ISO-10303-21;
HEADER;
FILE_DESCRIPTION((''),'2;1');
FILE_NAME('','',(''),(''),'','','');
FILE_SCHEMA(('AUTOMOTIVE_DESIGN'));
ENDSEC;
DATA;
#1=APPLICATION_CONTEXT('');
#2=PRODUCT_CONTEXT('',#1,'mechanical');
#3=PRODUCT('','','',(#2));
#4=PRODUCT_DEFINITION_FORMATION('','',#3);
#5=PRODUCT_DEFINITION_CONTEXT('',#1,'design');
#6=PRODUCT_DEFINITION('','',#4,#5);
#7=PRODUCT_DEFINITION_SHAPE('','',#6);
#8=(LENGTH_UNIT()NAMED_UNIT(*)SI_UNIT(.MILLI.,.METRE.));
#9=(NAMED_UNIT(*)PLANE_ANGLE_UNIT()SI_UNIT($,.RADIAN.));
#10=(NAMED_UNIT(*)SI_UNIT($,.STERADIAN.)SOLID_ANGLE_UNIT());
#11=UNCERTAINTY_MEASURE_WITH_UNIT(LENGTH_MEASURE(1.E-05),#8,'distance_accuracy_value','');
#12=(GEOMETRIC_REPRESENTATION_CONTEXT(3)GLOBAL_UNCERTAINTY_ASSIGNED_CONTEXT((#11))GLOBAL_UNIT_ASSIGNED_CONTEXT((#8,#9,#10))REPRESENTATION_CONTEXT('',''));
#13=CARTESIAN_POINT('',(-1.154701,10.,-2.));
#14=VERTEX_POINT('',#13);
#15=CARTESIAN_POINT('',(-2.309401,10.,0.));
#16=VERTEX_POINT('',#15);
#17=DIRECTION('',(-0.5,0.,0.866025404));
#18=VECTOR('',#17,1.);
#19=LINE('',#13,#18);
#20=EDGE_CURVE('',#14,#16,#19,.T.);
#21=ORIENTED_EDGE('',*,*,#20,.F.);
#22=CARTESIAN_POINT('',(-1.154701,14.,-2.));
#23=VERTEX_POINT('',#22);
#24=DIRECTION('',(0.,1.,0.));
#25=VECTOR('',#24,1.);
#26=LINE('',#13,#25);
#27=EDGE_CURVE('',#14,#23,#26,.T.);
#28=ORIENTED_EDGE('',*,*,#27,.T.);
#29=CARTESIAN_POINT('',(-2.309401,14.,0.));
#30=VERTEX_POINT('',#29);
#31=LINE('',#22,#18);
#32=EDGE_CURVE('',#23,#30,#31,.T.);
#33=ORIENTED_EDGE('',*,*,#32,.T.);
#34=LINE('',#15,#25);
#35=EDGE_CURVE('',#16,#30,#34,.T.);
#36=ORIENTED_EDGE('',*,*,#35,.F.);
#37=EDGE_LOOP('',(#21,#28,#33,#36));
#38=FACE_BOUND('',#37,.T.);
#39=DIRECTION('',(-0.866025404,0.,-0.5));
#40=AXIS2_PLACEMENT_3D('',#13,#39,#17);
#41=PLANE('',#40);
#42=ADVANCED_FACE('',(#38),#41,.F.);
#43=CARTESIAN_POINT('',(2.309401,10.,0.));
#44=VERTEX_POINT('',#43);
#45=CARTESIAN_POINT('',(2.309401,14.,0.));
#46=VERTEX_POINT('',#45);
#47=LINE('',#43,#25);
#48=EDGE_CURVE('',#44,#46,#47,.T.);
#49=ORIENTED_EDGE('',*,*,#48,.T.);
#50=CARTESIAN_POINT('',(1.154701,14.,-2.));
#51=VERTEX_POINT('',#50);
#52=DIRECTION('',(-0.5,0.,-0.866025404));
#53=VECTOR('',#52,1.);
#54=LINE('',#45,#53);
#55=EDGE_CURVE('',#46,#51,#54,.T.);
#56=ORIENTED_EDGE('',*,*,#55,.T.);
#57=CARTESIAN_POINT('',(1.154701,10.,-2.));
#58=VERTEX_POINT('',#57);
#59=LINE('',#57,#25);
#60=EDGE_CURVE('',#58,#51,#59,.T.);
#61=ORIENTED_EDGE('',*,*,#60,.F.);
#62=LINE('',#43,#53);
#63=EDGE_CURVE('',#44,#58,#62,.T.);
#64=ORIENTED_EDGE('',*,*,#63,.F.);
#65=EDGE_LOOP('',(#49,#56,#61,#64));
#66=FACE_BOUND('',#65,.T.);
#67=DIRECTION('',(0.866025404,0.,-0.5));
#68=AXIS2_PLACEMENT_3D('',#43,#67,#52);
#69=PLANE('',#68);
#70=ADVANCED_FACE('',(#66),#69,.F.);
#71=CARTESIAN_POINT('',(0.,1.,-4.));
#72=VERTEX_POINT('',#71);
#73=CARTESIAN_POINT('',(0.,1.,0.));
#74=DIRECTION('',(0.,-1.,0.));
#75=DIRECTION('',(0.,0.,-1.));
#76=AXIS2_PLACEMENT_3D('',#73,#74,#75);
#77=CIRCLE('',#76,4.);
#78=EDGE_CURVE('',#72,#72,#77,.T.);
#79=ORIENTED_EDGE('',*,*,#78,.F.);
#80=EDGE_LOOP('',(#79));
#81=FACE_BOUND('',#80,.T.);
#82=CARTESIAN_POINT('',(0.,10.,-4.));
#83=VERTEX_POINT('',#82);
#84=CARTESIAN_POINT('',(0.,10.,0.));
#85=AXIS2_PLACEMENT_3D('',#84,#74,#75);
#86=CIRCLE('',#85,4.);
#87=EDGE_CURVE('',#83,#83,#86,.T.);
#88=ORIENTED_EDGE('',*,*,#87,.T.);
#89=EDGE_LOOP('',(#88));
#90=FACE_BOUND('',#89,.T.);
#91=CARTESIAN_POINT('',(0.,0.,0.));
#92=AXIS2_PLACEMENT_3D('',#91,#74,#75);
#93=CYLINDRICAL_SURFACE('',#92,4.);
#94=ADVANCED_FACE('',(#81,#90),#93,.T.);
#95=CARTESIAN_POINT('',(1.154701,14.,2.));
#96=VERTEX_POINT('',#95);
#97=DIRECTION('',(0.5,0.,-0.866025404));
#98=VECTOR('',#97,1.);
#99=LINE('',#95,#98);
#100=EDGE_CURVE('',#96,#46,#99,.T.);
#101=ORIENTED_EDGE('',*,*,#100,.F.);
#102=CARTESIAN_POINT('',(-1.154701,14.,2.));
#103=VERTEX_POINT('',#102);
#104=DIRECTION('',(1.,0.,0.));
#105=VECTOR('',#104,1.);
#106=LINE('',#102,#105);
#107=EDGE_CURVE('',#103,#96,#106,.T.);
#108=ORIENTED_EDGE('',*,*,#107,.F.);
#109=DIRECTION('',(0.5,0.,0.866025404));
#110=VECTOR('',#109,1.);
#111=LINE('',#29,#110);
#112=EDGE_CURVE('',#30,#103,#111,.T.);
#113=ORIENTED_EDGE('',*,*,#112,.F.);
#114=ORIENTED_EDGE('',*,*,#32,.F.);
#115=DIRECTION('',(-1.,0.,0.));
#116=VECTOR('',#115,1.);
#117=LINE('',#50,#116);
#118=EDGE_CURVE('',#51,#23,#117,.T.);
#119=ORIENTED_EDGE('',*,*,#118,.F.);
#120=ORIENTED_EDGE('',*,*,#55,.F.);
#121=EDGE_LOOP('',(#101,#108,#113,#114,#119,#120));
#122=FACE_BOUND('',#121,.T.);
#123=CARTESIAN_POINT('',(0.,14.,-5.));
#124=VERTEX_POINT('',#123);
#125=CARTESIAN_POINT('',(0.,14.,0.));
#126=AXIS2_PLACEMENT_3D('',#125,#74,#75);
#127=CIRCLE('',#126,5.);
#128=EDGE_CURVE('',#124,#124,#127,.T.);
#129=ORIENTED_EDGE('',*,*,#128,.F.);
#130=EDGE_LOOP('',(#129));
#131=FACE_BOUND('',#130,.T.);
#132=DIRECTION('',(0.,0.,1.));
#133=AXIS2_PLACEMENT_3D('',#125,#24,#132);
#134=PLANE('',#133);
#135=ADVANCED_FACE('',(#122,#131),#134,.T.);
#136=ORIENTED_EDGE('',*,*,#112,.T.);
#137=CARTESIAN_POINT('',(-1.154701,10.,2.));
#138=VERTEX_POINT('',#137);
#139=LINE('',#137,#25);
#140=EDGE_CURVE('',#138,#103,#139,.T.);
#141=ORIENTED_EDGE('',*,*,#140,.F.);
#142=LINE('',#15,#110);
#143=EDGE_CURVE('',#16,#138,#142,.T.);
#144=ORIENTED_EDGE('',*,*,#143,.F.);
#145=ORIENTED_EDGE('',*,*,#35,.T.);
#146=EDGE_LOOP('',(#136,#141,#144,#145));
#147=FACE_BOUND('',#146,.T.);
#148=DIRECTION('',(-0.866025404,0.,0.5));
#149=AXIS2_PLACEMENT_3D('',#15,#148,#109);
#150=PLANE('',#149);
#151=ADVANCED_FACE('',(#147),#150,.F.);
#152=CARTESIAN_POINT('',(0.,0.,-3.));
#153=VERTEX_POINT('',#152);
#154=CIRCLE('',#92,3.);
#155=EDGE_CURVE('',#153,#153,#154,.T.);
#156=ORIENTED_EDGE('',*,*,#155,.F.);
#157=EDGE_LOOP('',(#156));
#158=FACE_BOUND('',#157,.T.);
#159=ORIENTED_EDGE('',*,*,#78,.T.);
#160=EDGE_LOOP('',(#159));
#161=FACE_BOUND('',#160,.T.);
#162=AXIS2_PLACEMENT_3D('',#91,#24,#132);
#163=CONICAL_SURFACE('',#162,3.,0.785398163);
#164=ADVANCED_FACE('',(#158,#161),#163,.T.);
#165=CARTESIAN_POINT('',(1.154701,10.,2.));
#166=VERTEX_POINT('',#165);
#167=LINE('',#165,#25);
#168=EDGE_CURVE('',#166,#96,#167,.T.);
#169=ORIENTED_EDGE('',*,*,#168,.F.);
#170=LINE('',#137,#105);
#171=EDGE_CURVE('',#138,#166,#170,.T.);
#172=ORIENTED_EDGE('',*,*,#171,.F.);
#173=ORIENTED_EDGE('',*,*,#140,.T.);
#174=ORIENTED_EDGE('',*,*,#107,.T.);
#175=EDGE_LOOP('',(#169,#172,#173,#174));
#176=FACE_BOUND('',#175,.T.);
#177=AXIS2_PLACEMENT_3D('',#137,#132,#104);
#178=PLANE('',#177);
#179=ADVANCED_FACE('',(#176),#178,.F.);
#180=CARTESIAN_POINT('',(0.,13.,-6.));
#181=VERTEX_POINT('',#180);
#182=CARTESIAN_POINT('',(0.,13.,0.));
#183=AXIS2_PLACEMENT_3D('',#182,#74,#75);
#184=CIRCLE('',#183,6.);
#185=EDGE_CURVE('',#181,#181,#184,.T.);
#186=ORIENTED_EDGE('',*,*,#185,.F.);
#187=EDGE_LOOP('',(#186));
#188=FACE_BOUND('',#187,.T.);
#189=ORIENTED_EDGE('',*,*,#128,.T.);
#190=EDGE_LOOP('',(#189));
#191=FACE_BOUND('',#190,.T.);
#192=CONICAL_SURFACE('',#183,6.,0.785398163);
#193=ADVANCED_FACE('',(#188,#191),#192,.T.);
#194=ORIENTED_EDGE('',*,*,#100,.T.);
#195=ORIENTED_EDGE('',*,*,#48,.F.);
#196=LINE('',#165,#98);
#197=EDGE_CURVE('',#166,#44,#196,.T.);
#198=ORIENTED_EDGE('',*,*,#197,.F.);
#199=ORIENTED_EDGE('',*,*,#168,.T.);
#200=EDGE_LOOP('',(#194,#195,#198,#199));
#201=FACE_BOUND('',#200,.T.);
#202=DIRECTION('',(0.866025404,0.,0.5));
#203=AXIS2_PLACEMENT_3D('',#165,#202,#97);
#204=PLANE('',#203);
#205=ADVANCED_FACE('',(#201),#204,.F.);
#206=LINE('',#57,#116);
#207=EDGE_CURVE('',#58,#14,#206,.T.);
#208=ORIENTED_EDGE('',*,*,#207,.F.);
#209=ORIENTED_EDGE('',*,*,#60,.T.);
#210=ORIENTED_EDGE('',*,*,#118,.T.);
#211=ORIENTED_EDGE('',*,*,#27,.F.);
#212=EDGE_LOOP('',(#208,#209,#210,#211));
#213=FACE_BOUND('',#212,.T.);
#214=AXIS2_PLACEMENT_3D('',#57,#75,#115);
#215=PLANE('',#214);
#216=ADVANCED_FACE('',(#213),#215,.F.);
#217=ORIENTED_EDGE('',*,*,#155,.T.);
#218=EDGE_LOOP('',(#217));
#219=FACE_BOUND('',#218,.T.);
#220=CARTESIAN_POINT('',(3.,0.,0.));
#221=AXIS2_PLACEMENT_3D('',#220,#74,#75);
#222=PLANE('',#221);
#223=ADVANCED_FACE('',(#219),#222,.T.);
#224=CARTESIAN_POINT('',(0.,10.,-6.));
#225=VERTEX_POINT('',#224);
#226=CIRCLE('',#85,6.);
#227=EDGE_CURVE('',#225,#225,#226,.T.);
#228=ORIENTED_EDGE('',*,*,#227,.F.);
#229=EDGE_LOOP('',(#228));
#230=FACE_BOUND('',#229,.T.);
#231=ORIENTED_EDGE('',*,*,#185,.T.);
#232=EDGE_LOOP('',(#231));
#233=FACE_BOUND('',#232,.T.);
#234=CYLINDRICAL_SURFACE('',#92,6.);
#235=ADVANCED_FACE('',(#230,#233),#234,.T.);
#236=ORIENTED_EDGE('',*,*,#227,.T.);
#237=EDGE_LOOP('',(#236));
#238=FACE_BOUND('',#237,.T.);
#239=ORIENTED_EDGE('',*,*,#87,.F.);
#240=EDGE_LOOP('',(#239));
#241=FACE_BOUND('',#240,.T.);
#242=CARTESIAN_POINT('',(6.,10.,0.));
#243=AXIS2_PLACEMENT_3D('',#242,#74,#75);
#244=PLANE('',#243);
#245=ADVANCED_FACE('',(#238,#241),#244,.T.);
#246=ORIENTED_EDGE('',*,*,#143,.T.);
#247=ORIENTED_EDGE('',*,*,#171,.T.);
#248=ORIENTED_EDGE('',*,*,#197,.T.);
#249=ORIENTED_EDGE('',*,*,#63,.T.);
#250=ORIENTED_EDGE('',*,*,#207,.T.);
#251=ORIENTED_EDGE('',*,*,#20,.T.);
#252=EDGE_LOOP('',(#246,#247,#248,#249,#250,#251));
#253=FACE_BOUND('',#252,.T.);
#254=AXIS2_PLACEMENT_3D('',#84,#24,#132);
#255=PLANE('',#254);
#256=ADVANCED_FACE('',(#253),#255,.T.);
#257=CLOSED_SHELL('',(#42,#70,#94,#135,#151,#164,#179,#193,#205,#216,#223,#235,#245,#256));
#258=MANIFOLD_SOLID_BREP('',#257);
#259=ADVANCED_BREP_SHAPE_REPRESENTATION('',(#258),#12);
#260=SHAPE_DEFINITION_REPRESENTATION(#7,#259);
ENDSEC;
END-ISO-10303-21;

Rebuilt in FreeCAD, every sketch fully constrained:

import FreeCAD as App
import Part
import Sketcher
Q = App.Units.Quantity


def add_polygon(sketch, points):
    """Adds a closed chain of lines whose ends are joined by coincident constraints."""
    first, n = sketch.GeometryCount, len(points)
    for a, b in zip(points, points[1:] + points[:1]):
        sketch.addGeometry(Part.LineSegment(App.Vector(*a, 0), App.Vector(*b, 0)), False)
    for i in range(n):
        sketch.addConstraint(Sketcher.Constraint("Coincident", first + i, 2, first + (i + 1) % n, 1))

doc = App.newDocument("Part")
body = doc.addObject("PartDesign::Body", "Body")

sketch1 = body.newObject("Sketcher::SketchObject", "Sketch")
sketch1.AttachmentSupport = (doc.getObject("XY_Plane"), [""])
sketch1.MapMode = "FlatFace"
add_polygon(sketch1, [(0, 14), (0, 0), (3, 0), (4, 1), (4, 10), (6, 10), (6, 13), (5, 14)])
sketch1.addConstraint([
    Sketcher.Constraint("Vertical", 0),
    Sketcher.Constraint("Horizontal", 1),
    Sketcher.Constraint("Vertical", 3),
    Sketcher.Constraint("Horizontal", 4),
    Sketcher.Constraint("Vertical", 5),
    Sketcher.Constraint("Horizontal", 7),
    Sketcher.Constraint("Coincident", 0, 2, -1, 1),
    Sketcher.Constraint("Perpendicular", 2, 6),
    Sketcher.Constraint("Equal", 1, 5),
    Sketcher.Constraint("Equal", 2, 6),
    Sketcher.Constraint("DistanceX", 1, 1, 1, 2, Q("3 mm")),
    Sketcher.Constraint("DistanceX", 4, 1, 4, 2, Q("2 mm")),
    Sketcher.Constraint("DistanceX", 7, 2, 7, 1, Q("5 mm")),
    Sketcher.Constraint("DistanceY", 0, 2, 0, 1, Q("14 mm")),
    Sketcher.Constraint("DistanceY", 3, 1, 3, 2, Q("9 mm")),
])
revolution = body.newObject("PartDesign::Revolution", "Revolution")
revolution.Profile = sketch1
revolution.ReferenceAxis = (sketch1, ["V_Axis"])
revolution.Angle = 360

sketch2 = body.newObject("Sketcher::SketchObject", "Sketch001")
sketch2.AttachmentSupport = (doc.getObject("XZ_Plane"), [""])
sketch2.MapMode = "FlatFace"
sketch2.AttachmentOffset = App.Placement(App.Vector(0, 0, -14), App.Rotation())
add_polygon(sketch2, [(1.2, -2), (-1.2, -2), (-2.3, 0), (-1.2, 2), (1.2, 2), (2.3, 0)])
sketch2.addConstraint([
    Sketcher.Constraint("Horizontal", 0),
    Sketcher.Constraint("Horizontal", 3),
    Sketcher.Constraint("Symmetric", 0, 2, 3, 2, -1, 1),
    Sketcher.Constraint("Symmetric", 1, 2, 4, 2, -1, 1),
    Sketcher.Constraint("PointOnObject", 1, 2, -1),
    Sketcher.Constraint("Parallel", 2, 5),
    Sketcher.Constraint("Vertical", 0, 2, 2, 2),
    Sketcher.Constraint("Angle", 1, Q("120 deg")),
    Sketcher.Constraint("DistanceY", 0, 2, -1, 1, Q("2 mm")),
    Sketcher.Constraint("DistanceX", 0, 2, 0, 1, Q("2.309401 mm")),
])
pocket1 = body.newObject("PartDesign::Pocket", "Pocket")
pocket1.Profile = sketch2
pocket1.Length = 4
pocket1.Reversed = True

doc.recompute()
